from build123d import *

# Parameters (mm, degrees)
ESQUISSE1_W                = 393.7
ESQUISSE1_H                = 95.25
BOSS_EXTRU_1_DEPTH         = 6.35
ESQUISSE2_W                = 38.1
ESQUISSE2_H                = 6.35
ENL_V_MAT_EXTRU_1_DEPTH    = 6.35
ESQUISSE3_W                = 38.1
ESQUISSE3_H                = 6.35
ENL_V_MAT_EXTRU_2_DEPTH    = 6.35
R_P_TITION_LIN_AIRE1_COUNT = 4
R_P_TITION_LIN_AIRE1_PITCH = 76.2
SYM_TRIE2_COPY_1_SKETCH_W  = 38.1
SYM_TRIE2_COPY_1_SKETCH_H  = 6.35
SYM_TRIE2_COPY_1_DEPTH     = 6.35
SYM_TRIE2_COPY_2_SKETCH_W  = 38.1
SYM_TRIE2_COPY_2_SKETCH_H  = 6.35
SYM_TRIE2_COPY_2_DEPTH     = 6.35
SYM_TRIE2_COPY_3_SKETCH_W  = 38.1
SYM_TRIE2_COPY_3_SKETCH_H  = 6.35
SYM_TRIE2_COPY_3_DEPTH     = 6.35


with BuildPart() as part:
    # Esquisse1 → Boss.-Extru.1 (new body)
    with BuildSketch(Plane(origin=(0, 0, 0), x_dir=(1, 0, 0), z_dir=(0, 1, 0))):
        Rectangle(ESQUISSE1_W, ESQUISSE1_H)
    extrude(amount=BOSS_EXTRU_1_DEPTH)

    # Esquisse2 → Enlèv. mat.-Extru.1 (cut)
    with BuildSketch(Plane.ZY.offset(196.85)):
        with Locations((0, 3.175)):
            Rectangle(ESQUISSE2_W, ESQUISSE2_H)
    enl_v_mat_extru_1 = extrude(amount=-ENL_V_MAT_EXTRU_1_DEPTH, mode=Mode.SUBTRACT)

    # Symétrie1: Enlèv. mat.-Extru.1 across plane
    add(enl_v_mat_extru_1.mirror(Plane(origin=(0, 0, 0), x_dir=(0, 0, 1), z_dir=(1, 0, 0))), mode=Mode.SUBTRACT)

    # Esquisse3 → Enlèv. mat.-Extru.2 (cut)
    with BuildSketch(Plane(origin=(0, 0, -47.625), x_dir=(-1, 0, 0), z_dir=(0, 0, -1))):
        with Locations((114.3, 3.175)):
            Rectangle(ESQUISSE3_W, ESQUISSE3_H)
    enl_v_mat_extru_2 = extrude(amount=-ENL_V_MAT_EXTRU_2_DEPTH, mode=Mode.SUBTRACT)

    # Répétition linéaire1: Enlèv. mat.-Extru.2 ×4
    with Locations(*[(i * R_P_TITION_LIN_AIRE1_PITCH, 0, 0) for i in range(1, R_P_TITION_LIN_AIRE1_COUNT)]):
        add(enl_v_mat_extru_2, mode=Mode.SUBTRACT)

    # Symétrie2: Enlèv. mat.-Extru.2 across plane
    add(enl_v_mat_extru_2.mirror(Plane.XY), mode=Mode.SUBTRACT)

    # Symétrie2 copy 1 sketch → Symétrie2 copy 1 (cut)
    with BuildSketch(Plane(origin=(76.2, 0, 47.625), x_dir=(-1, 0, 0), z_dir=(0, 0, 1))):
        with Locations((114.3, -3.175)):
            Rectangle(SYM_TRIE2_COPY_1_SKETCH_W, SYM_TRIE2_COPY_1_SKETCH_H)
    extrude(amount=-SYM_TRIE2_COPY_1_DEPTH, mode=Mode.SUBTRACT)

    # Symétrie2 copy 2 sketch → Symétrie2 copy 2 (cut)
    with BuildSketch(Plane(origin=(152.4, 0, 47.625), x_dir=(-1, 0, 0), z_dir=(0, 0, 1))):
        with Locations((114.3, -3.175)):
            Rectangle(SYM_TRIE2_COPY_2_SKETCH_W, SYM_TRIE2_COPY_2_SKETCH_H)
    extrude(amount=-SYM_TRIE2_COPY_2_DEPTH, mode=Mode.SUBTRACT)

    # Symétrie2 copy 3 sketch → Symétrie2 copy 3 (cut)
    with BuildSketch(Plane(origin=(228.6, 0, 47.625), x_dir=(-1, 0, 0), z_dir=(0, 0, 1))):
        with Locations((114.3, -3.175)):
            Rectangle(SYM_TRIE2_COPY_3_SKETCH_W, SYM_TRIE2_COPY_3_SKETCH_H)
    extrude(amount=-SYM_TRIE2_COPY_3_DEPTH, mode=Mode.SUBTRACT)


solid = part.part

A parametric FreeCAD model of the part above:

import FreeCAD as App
import Part
import Sketcher
Q = App.Units.Quantity

doc = App.newDocument("Part")
body = doc.addObject("PartDesign::Body", "Body")

sketch1 = doc.addObject("Sketcher::SketchObject", "Sketch")
body.addObject(sketch1)
sketch1.AttachmentSupport = (doc.XZ_Plane, [""])
sketch1.MapMode = "FlatFace"
sketch1.addGeometry(Part.LineSegment(App.Vector(-197, -48, 0), App.Vector(-197, 48, 0)), False)
sketch1.addGeometry(Part.LineSegment(App.Vector(-197, 48, 0), App.Vector(197, 48, 0)), False)
sketch1.addGeometry(Part.LineSegment(App.Vector(197, 48, 0), App.Vector(197, -48, 0)), False)
sketch1.addGeometry(Part.LineSegment(App.Vector(197, -48, 0), App.Vector(-197, -48, 0)), False)
sketch1.addConstraint(Sketcher.Constraint("Coincident", 0, 2, 1, 1))
sketch1.addConstraint(Sketcher.Constraint("Coincident", 1, 2, 2, 1))
sketch1.addConstraint(Sketcher.Constraint("Coincident", 2, 2, 3, 1))
sketch1.addConstraint(Sketcher.Constraint("Coincident", 3, 2, 0, 1))
sketch1.addConstraint(Sketcher.Constraint("Vertical", 0))
sketch1.addConstraint(Sketcher.Constraint("Horizontal", 1))
sketch1.addConstraint(Sketcher.Constraint("Vertical", 2))
sketch1.addConstraint(Sketcher.Constraint("Horizontal", 3))
sketch1.addConstraint(Sketcher.Constraint("Symmetric", 0, 2, 2, 2, -1, 1))
sketch1.addConstraint(Sketcher.Constraint("DistanceX", 1, 1, 1, 2, Q("15.5 in")))
sketch1.addConstraint(Sketcher.Constraint("DistanceY", 0, 1, 0, 2, Q("3.75 in")))
pad1 = doc.addObject("PartDesign::Pad", "Pad")
body.addObject(pad1)
pad1.Profile = sketch1
pad1.Length = Q("0.25 in")
pad1.Reversed = True

sketch2 = doc.addObject("Sketcher::SketchObject", "Sketch001")
body.addObject(sketch2)
sketch2.AttachmentSupport = (doc.YZ_Plane, [""])
sketch2.MapMode = "FlatFace"
sketch2.AttachmentOffset = App.Placement(App.Vector(0, 0, -7.75 * 25.4), App.Rotation())
sketch2.addGeometry(Part.LineSegment(App.Vector(6, -19, 0), App.Vector(0, -19, 0)), False)
sketch2.addGeometry(Part.LineSegment(App.Vector(0, -19, 0), App.Vector(0, 19, 0)), False)
sketch2.addGeometry(Part.LineSegment(App.Vector(0, 19, 0), App.Vector(6, 19, 0)), False)
sketch2.addGeometry(Part.LineSegment(App.Vector(6, 19, 0), App.Vector(6, -19, 0)), False)
sketch2.addConstraint(Sketcher.Constraint("Coincident", 0, 2, 1, 1))
sketch2.addConstraint(Sketcher.Constraint("Coincident", 1, 2, 2, 1))
sketch2.addConstraint(Sketcher.Constraint("Coincident", 2, 2, 3, 1))
sketch2.addConstraint(Sketcher.Constraint("Coincident", 3, 2, 0, 1))
sketch2.addConstraint(Sketcher.Constraint("Horizontal", 0))
sketch2.addConstraint(Sketcher.Constraint("Vertical", 1))
sketch2.addConstraint(Sketcher.Constraint("Horizontal", 2))
sketch2.addConstraint(Sketcher.Constraint("Vertical", 3))
sketch2.addConstraint(Sketcher.Constraint("Symmetric", 0, 2, 1, 2, -1, 1))
sketch2.addConstraint(Sketcher.Constraint("DistanceY", 1, 1, 1, 2, Q("1.5 in")))
sketch2.addConstraint(Sketcher.Constraint("DistanceX", 0, 2, 0, 1, Q("0.25 in")))
pocket1 = doc.addObject("PartDesign::Pocket", "Pocket")
body.addObject(pocket1)
pocket1.Profile = sketch2
pocket1.Length = Q("0.25 in")
pocket1.Reversed = True
doc.recompute()

mirrored = doc.addObject("PartDesign::Mirrored", "Mirrored")
body.addObject(mirrored)
mirrored.Originals = [pocket1]
mirrored.MirrorPlane = (doc.YZ_Plane, [""])
body.Tip = mirrored

sketch3 = doc.addObject("Sketcher::SketchObject", "Sketch002")
body.addObject(sketch3)
sketch3.AttachmentSupport = (doc.XY_Plane, [""])
sketch3.MapMode = "FlatFace"
sketch3.AttachmentOffset = App.Placement(App.Vector(0, 0, -1.875 * 25.4), App.Rotation())
sketch3.addGeometry(Part.LineSegment(App.Vector(-95, 6, 0), App.Vector(-95, 0, 0)), False)
sketch3.addGeometry(Part.LineSegment(App.Vector(-95, 0, 0), App.Vector(-133, 0, 0)), False)
sketch3.addGeometry(Part.LineSegment(App.Vector(-133, 0, 0), App.Vector(-133, 6, 0)), False)
sketch3.addGeometry(Part.LineSegment(App.Vector(-133, 6, 0), App.Vector(-95, 6, 0)), False)
sketch3.addConstraint(Sketcher.Constraint("Coincident", 0, 2, 1, 1))
sketch3.addConstraint(Sketcher.Constraint("Coincident", 1, 2, 2, 1))
sketch3.addConstraint(Sketcher.Constraint("Coincident", 2, 2, 3, 1))
sketch3.addConstraint(Sketcher.Constraint("Coincident", 3, 2, 0, 1))
sketch3.addConstraint(Sketcher.Constraint("Vertical", 0))
sketch3.addConstraint(Sketcher.Constraint("Horizontal", 1))
sketch3.addConstraint(Sketcher.Constraint("Vertical", 2))
sketch3.addConstraint(Sketcher.Constraint("Horizontal", 3))
sketch3.addConstraint(Sketcher.Constraint("PointOnObject", 0, 2, -1))
sketch3.addConstraint(Sketcher.Constraint("DistanceX", 1, 2, 1, 1, Q("1.5 in")))
sketch3.addConstraint(Sketcher.Constraint("DistanceY", 0, 2, 0, 1, Q("0.25 in")))
sketch3.addConstraint(Sketcher.Constraint("DistanceX", 0, 2, -1, 1, Q("3.75 in")))
pocket2 = doc.addObject("PartDesign::Pocket", "Pocket001")
body.addObject(pocket2)
pocket2.Profile = sketch3
pocket2.Length = Q("0.25 in")
pocket2.Reversed = True
doc.recompute()

linearpattern = doc.addObject("PartDesign::LinearPattern", "LinearPattern")
body.addObject(linearpattern)
linearpattern.Originals = [pocket2]
linearpattern.Direction = (doc.X_Axis, [""])
linearpattern.Mode = "offset"
linearpattern.Offset = Q("3 in")
linearpattern.Occurrences = 4
body.Tip = linearpattern
doc.recompute()

mirrored2 = doc.addObject("PartDesign::Mirrored", "Mirrored001")
body.addObject(mirrored2)
mirrored2.Originals = [pocket2]
mirrored2.MirrorPlane = (doc.XY_Plane, [""])
body.Tip = mirrored2

sketch4 = doc.addObject("Sketcher::SketchObject", "Sketch003")
body.addObject(sketch4)
sketch4.AttachmentSupport = (doc.XY_Plane, [""])
sketch4.MapMode = "FlatFace"
sketch4.AttachmentOffset = App.Placement(App.Vector(0, 0, 1.875 * 25.4), App.Rotation())
sketch4.addGeometry(Part.LineSegment(App.Vector(-19, 0, 0), App.Vector(-19, 6, 0)), False)
sketch4.addGeometry(Part.LineSegment(App.Vector(-19, 6, 0), App.Vector(-57, 6, 0)), False)
sketch4.addGeometry(Part.LineSegment(App.Vector(-57, 6, 0), App.Vector(-57, 0, 0)), False)
sketch4.addGeometry(Part.LineSegment(App.Vector(-57, 0, 0), App.Vector(-19, 0, 0)), False)
sketch4.addConstraint(Sketcher.Constraint("Coincident", 0, 2, 1, 1))
sketch4.addConstraint(Sketcher.Constraint("Coincident", 1, 2, 2, 1))
sketch4.addConstraint(Sketcher.Constraint("Coincident", 2, 2, 3, 1))
sketch4.addConstraint(Sketcher.Constraint("Coincident", 3, 2, 0, 1))
sketch4.addConstraint(Sketcher.Constraint("Vertical", 0))
sketch4.addConstraint(Sketcher.Constraint("Horizontal", 1))
sketch4.addConstraint(Sketcher.Constraint("Vertical", 2))
sketch4.addConstraint(Sketcher.Constraint("Horizontal", 3))
sketch4.addConstraint(Sketcher.Constraint("PointOnObject", 2, 2, -1))
sketch4.addConstraint(Sketcher.Constraint("DistanceX", 1, 2, 1, 1, Q("1.5 in")))
sketch4.addConstraint(Sketcher.Constraint("DistanceY", 0, 1, 0, 2, Q("0.25 in")))
sketch4.addConstraint(Sketcher.Constraint("DistanceX", 0, 2, -1, 1, Q("0.75 in")))
pocket3 = doc.addObject("PartDesign::Pocket", "Pocket002")
body.addObject(pocket3)
pocket3.Profile = sketch4
pocket3.Length = Q("0.25 in")

sketch5 = doc.addObject("Sketcher::SketchObject", "Sketch004")
body.addObject(sketch5)
sketch5.AttachmentSupport = (doc.XY_Plane, [""])
sketch5.MapMode = "FlatFace"
sketch5.AttachmentOffset = App.Placement(App.Vector(0, 0, 1.875 * 25.4), App.Rotation())
sketch5.addGeometry(Part.LineSegment(App.Vector(57, 0, 0), App.Vector(57, 6, 0)), False)
sketch5.addGeometry(Part.LineSegment(App.Vector(57, 6, 0), App.Vector(19, 6, 0)), False)
sketch5.addGeometry(Part.LineSegment(App.Vector(19, 6, 0), App.Vector(19, 0, 0)), False)
sketch5.addGeometry(Part.LineSegment(App.Vector(19, 0, 0), App.Vector(57, 0, 0)), False)
sketch5.addConstraint(Sketcher.Constraint("Coincident", 0, 2, 1, 1))
sketch5.addConstraint(Sketcher.Constraint("Coincident", 1, 2, 2, 1))
sketch5.addConstraint(Sketcher.Constraint("Coincident", 2, 2, 3, 1))
sketch5.addConstraint(Sketcher.Constraint("Coincident", 3, 2, 0, 1))
sketch5.addConstraint(Sketcher.Constraint("Vertical", 0))
sketch5.addConstraint(Sketcher.Constraint("Horizontal", 1))
sketch5.addConstraint(Sketcher.Constraint("Vertical", 2))
sketch5.addConstraint(Sketcher.Constraint("Horizontal", 3))
sketch5.addConstraint(Sketcher.Constraint("PointOnObject", 2, 2, -1))
sketch5.addConstraint(Sketcher.Constraint("DistanceX", 1, 2, 1, 1, Q("1.5 in")))
sketch5.addConstraint(Sketcher.Constraint("DistanceY", 0, 1, 0, 2, Q("0.25 in")))
sketch5.addConstraint(Sketcher.Constraint("DistanceX", -1, 1, 0, 2, Q("2.25 in")))
pocket4 = doc.addObject("PartDesign::Pocket", "Pocket003")
body.addObject(pocket4)
pocket4.Profile = sketch5
pocket4.Length = Q("0.25 in")

sketch6 = doc.addObject("Sketcher::SketchObject", "Sketch005")
body.addObject(sketch6)
sketch6.AttachmentSupport = (doc.XY_Plane, [""])
sketch6.MapMode = "FlatFace"
sketch6.AttachmentOffset = App.Placement(App.Vector(0, 0, 1.875 * 25.4), App.Rotation())
sketch6.addGeometry(Part.LineSegment(App.Vector(133, 0, 0), App.Vector(133, 6, 0)), False)
sketch6.addGeometry(Part.LineSegment(App.Vector(133, 6, 0), App.Vector(95, 6, 0)), False)
sketch6.addGeometry(Part.LineSegment(App.Vector(95, 6, 0), App.Vector(95, 0, 0)), False)
sketch6.addGeometry(Part.LineSegment(App.Vector(95, 0, 0), App.Vector(133, 0, 0)), False)
sketch6.addConstraint(Sketcher.Constraint("Coincident", 0, 2, 1, 1))
sketch6.addConstraint(Sketcher.Constraint("Coincident", 1, 2, 2, 1))
sketch6.addConstraint(Sketcher.Constraint("Coincident", 2, 2, 3, 1))
sketch6.addConstraint(Sketcher.Constraint("Coincident", 3, 2, 0, 1))
sketch6.addConstraint(Sketcher.Constraint("Vertical", 0))
sketch6.addConstraint(Sketcher.Constraint("Horizontal", 1))
sketch6.addConstraint(Sketcher.Constraint("Vertical", 2))
sketch6.addConstraint(Sketcher.Constraint("Horizontal", 3))
sketch6.addConstraint(Sketcher.Constraint("PointOnObject", 2, 2, -1))
sketch6.addConstraint(Sketcher.Constraint("DistanceX", 1, 2, 1, 1, Q("1.5 in")))
sketch6.addConstraint(Sketcher.Constraint("DistanceY", 0, 1, 0, 2, Q("0.25 in")))
sketch6.addConstraint(Sketcher.Constraint("DistanceX", -1, 1, 0, 2, Q("5.25 in")))
pocket5 = doc.addObject("PartDesign::Pocket", "Pocket004")
body.addObject(pocket5)
pocket5.Profile = sketch6
pocket5.Length = Q("0.25 in")

doc.recompute()
